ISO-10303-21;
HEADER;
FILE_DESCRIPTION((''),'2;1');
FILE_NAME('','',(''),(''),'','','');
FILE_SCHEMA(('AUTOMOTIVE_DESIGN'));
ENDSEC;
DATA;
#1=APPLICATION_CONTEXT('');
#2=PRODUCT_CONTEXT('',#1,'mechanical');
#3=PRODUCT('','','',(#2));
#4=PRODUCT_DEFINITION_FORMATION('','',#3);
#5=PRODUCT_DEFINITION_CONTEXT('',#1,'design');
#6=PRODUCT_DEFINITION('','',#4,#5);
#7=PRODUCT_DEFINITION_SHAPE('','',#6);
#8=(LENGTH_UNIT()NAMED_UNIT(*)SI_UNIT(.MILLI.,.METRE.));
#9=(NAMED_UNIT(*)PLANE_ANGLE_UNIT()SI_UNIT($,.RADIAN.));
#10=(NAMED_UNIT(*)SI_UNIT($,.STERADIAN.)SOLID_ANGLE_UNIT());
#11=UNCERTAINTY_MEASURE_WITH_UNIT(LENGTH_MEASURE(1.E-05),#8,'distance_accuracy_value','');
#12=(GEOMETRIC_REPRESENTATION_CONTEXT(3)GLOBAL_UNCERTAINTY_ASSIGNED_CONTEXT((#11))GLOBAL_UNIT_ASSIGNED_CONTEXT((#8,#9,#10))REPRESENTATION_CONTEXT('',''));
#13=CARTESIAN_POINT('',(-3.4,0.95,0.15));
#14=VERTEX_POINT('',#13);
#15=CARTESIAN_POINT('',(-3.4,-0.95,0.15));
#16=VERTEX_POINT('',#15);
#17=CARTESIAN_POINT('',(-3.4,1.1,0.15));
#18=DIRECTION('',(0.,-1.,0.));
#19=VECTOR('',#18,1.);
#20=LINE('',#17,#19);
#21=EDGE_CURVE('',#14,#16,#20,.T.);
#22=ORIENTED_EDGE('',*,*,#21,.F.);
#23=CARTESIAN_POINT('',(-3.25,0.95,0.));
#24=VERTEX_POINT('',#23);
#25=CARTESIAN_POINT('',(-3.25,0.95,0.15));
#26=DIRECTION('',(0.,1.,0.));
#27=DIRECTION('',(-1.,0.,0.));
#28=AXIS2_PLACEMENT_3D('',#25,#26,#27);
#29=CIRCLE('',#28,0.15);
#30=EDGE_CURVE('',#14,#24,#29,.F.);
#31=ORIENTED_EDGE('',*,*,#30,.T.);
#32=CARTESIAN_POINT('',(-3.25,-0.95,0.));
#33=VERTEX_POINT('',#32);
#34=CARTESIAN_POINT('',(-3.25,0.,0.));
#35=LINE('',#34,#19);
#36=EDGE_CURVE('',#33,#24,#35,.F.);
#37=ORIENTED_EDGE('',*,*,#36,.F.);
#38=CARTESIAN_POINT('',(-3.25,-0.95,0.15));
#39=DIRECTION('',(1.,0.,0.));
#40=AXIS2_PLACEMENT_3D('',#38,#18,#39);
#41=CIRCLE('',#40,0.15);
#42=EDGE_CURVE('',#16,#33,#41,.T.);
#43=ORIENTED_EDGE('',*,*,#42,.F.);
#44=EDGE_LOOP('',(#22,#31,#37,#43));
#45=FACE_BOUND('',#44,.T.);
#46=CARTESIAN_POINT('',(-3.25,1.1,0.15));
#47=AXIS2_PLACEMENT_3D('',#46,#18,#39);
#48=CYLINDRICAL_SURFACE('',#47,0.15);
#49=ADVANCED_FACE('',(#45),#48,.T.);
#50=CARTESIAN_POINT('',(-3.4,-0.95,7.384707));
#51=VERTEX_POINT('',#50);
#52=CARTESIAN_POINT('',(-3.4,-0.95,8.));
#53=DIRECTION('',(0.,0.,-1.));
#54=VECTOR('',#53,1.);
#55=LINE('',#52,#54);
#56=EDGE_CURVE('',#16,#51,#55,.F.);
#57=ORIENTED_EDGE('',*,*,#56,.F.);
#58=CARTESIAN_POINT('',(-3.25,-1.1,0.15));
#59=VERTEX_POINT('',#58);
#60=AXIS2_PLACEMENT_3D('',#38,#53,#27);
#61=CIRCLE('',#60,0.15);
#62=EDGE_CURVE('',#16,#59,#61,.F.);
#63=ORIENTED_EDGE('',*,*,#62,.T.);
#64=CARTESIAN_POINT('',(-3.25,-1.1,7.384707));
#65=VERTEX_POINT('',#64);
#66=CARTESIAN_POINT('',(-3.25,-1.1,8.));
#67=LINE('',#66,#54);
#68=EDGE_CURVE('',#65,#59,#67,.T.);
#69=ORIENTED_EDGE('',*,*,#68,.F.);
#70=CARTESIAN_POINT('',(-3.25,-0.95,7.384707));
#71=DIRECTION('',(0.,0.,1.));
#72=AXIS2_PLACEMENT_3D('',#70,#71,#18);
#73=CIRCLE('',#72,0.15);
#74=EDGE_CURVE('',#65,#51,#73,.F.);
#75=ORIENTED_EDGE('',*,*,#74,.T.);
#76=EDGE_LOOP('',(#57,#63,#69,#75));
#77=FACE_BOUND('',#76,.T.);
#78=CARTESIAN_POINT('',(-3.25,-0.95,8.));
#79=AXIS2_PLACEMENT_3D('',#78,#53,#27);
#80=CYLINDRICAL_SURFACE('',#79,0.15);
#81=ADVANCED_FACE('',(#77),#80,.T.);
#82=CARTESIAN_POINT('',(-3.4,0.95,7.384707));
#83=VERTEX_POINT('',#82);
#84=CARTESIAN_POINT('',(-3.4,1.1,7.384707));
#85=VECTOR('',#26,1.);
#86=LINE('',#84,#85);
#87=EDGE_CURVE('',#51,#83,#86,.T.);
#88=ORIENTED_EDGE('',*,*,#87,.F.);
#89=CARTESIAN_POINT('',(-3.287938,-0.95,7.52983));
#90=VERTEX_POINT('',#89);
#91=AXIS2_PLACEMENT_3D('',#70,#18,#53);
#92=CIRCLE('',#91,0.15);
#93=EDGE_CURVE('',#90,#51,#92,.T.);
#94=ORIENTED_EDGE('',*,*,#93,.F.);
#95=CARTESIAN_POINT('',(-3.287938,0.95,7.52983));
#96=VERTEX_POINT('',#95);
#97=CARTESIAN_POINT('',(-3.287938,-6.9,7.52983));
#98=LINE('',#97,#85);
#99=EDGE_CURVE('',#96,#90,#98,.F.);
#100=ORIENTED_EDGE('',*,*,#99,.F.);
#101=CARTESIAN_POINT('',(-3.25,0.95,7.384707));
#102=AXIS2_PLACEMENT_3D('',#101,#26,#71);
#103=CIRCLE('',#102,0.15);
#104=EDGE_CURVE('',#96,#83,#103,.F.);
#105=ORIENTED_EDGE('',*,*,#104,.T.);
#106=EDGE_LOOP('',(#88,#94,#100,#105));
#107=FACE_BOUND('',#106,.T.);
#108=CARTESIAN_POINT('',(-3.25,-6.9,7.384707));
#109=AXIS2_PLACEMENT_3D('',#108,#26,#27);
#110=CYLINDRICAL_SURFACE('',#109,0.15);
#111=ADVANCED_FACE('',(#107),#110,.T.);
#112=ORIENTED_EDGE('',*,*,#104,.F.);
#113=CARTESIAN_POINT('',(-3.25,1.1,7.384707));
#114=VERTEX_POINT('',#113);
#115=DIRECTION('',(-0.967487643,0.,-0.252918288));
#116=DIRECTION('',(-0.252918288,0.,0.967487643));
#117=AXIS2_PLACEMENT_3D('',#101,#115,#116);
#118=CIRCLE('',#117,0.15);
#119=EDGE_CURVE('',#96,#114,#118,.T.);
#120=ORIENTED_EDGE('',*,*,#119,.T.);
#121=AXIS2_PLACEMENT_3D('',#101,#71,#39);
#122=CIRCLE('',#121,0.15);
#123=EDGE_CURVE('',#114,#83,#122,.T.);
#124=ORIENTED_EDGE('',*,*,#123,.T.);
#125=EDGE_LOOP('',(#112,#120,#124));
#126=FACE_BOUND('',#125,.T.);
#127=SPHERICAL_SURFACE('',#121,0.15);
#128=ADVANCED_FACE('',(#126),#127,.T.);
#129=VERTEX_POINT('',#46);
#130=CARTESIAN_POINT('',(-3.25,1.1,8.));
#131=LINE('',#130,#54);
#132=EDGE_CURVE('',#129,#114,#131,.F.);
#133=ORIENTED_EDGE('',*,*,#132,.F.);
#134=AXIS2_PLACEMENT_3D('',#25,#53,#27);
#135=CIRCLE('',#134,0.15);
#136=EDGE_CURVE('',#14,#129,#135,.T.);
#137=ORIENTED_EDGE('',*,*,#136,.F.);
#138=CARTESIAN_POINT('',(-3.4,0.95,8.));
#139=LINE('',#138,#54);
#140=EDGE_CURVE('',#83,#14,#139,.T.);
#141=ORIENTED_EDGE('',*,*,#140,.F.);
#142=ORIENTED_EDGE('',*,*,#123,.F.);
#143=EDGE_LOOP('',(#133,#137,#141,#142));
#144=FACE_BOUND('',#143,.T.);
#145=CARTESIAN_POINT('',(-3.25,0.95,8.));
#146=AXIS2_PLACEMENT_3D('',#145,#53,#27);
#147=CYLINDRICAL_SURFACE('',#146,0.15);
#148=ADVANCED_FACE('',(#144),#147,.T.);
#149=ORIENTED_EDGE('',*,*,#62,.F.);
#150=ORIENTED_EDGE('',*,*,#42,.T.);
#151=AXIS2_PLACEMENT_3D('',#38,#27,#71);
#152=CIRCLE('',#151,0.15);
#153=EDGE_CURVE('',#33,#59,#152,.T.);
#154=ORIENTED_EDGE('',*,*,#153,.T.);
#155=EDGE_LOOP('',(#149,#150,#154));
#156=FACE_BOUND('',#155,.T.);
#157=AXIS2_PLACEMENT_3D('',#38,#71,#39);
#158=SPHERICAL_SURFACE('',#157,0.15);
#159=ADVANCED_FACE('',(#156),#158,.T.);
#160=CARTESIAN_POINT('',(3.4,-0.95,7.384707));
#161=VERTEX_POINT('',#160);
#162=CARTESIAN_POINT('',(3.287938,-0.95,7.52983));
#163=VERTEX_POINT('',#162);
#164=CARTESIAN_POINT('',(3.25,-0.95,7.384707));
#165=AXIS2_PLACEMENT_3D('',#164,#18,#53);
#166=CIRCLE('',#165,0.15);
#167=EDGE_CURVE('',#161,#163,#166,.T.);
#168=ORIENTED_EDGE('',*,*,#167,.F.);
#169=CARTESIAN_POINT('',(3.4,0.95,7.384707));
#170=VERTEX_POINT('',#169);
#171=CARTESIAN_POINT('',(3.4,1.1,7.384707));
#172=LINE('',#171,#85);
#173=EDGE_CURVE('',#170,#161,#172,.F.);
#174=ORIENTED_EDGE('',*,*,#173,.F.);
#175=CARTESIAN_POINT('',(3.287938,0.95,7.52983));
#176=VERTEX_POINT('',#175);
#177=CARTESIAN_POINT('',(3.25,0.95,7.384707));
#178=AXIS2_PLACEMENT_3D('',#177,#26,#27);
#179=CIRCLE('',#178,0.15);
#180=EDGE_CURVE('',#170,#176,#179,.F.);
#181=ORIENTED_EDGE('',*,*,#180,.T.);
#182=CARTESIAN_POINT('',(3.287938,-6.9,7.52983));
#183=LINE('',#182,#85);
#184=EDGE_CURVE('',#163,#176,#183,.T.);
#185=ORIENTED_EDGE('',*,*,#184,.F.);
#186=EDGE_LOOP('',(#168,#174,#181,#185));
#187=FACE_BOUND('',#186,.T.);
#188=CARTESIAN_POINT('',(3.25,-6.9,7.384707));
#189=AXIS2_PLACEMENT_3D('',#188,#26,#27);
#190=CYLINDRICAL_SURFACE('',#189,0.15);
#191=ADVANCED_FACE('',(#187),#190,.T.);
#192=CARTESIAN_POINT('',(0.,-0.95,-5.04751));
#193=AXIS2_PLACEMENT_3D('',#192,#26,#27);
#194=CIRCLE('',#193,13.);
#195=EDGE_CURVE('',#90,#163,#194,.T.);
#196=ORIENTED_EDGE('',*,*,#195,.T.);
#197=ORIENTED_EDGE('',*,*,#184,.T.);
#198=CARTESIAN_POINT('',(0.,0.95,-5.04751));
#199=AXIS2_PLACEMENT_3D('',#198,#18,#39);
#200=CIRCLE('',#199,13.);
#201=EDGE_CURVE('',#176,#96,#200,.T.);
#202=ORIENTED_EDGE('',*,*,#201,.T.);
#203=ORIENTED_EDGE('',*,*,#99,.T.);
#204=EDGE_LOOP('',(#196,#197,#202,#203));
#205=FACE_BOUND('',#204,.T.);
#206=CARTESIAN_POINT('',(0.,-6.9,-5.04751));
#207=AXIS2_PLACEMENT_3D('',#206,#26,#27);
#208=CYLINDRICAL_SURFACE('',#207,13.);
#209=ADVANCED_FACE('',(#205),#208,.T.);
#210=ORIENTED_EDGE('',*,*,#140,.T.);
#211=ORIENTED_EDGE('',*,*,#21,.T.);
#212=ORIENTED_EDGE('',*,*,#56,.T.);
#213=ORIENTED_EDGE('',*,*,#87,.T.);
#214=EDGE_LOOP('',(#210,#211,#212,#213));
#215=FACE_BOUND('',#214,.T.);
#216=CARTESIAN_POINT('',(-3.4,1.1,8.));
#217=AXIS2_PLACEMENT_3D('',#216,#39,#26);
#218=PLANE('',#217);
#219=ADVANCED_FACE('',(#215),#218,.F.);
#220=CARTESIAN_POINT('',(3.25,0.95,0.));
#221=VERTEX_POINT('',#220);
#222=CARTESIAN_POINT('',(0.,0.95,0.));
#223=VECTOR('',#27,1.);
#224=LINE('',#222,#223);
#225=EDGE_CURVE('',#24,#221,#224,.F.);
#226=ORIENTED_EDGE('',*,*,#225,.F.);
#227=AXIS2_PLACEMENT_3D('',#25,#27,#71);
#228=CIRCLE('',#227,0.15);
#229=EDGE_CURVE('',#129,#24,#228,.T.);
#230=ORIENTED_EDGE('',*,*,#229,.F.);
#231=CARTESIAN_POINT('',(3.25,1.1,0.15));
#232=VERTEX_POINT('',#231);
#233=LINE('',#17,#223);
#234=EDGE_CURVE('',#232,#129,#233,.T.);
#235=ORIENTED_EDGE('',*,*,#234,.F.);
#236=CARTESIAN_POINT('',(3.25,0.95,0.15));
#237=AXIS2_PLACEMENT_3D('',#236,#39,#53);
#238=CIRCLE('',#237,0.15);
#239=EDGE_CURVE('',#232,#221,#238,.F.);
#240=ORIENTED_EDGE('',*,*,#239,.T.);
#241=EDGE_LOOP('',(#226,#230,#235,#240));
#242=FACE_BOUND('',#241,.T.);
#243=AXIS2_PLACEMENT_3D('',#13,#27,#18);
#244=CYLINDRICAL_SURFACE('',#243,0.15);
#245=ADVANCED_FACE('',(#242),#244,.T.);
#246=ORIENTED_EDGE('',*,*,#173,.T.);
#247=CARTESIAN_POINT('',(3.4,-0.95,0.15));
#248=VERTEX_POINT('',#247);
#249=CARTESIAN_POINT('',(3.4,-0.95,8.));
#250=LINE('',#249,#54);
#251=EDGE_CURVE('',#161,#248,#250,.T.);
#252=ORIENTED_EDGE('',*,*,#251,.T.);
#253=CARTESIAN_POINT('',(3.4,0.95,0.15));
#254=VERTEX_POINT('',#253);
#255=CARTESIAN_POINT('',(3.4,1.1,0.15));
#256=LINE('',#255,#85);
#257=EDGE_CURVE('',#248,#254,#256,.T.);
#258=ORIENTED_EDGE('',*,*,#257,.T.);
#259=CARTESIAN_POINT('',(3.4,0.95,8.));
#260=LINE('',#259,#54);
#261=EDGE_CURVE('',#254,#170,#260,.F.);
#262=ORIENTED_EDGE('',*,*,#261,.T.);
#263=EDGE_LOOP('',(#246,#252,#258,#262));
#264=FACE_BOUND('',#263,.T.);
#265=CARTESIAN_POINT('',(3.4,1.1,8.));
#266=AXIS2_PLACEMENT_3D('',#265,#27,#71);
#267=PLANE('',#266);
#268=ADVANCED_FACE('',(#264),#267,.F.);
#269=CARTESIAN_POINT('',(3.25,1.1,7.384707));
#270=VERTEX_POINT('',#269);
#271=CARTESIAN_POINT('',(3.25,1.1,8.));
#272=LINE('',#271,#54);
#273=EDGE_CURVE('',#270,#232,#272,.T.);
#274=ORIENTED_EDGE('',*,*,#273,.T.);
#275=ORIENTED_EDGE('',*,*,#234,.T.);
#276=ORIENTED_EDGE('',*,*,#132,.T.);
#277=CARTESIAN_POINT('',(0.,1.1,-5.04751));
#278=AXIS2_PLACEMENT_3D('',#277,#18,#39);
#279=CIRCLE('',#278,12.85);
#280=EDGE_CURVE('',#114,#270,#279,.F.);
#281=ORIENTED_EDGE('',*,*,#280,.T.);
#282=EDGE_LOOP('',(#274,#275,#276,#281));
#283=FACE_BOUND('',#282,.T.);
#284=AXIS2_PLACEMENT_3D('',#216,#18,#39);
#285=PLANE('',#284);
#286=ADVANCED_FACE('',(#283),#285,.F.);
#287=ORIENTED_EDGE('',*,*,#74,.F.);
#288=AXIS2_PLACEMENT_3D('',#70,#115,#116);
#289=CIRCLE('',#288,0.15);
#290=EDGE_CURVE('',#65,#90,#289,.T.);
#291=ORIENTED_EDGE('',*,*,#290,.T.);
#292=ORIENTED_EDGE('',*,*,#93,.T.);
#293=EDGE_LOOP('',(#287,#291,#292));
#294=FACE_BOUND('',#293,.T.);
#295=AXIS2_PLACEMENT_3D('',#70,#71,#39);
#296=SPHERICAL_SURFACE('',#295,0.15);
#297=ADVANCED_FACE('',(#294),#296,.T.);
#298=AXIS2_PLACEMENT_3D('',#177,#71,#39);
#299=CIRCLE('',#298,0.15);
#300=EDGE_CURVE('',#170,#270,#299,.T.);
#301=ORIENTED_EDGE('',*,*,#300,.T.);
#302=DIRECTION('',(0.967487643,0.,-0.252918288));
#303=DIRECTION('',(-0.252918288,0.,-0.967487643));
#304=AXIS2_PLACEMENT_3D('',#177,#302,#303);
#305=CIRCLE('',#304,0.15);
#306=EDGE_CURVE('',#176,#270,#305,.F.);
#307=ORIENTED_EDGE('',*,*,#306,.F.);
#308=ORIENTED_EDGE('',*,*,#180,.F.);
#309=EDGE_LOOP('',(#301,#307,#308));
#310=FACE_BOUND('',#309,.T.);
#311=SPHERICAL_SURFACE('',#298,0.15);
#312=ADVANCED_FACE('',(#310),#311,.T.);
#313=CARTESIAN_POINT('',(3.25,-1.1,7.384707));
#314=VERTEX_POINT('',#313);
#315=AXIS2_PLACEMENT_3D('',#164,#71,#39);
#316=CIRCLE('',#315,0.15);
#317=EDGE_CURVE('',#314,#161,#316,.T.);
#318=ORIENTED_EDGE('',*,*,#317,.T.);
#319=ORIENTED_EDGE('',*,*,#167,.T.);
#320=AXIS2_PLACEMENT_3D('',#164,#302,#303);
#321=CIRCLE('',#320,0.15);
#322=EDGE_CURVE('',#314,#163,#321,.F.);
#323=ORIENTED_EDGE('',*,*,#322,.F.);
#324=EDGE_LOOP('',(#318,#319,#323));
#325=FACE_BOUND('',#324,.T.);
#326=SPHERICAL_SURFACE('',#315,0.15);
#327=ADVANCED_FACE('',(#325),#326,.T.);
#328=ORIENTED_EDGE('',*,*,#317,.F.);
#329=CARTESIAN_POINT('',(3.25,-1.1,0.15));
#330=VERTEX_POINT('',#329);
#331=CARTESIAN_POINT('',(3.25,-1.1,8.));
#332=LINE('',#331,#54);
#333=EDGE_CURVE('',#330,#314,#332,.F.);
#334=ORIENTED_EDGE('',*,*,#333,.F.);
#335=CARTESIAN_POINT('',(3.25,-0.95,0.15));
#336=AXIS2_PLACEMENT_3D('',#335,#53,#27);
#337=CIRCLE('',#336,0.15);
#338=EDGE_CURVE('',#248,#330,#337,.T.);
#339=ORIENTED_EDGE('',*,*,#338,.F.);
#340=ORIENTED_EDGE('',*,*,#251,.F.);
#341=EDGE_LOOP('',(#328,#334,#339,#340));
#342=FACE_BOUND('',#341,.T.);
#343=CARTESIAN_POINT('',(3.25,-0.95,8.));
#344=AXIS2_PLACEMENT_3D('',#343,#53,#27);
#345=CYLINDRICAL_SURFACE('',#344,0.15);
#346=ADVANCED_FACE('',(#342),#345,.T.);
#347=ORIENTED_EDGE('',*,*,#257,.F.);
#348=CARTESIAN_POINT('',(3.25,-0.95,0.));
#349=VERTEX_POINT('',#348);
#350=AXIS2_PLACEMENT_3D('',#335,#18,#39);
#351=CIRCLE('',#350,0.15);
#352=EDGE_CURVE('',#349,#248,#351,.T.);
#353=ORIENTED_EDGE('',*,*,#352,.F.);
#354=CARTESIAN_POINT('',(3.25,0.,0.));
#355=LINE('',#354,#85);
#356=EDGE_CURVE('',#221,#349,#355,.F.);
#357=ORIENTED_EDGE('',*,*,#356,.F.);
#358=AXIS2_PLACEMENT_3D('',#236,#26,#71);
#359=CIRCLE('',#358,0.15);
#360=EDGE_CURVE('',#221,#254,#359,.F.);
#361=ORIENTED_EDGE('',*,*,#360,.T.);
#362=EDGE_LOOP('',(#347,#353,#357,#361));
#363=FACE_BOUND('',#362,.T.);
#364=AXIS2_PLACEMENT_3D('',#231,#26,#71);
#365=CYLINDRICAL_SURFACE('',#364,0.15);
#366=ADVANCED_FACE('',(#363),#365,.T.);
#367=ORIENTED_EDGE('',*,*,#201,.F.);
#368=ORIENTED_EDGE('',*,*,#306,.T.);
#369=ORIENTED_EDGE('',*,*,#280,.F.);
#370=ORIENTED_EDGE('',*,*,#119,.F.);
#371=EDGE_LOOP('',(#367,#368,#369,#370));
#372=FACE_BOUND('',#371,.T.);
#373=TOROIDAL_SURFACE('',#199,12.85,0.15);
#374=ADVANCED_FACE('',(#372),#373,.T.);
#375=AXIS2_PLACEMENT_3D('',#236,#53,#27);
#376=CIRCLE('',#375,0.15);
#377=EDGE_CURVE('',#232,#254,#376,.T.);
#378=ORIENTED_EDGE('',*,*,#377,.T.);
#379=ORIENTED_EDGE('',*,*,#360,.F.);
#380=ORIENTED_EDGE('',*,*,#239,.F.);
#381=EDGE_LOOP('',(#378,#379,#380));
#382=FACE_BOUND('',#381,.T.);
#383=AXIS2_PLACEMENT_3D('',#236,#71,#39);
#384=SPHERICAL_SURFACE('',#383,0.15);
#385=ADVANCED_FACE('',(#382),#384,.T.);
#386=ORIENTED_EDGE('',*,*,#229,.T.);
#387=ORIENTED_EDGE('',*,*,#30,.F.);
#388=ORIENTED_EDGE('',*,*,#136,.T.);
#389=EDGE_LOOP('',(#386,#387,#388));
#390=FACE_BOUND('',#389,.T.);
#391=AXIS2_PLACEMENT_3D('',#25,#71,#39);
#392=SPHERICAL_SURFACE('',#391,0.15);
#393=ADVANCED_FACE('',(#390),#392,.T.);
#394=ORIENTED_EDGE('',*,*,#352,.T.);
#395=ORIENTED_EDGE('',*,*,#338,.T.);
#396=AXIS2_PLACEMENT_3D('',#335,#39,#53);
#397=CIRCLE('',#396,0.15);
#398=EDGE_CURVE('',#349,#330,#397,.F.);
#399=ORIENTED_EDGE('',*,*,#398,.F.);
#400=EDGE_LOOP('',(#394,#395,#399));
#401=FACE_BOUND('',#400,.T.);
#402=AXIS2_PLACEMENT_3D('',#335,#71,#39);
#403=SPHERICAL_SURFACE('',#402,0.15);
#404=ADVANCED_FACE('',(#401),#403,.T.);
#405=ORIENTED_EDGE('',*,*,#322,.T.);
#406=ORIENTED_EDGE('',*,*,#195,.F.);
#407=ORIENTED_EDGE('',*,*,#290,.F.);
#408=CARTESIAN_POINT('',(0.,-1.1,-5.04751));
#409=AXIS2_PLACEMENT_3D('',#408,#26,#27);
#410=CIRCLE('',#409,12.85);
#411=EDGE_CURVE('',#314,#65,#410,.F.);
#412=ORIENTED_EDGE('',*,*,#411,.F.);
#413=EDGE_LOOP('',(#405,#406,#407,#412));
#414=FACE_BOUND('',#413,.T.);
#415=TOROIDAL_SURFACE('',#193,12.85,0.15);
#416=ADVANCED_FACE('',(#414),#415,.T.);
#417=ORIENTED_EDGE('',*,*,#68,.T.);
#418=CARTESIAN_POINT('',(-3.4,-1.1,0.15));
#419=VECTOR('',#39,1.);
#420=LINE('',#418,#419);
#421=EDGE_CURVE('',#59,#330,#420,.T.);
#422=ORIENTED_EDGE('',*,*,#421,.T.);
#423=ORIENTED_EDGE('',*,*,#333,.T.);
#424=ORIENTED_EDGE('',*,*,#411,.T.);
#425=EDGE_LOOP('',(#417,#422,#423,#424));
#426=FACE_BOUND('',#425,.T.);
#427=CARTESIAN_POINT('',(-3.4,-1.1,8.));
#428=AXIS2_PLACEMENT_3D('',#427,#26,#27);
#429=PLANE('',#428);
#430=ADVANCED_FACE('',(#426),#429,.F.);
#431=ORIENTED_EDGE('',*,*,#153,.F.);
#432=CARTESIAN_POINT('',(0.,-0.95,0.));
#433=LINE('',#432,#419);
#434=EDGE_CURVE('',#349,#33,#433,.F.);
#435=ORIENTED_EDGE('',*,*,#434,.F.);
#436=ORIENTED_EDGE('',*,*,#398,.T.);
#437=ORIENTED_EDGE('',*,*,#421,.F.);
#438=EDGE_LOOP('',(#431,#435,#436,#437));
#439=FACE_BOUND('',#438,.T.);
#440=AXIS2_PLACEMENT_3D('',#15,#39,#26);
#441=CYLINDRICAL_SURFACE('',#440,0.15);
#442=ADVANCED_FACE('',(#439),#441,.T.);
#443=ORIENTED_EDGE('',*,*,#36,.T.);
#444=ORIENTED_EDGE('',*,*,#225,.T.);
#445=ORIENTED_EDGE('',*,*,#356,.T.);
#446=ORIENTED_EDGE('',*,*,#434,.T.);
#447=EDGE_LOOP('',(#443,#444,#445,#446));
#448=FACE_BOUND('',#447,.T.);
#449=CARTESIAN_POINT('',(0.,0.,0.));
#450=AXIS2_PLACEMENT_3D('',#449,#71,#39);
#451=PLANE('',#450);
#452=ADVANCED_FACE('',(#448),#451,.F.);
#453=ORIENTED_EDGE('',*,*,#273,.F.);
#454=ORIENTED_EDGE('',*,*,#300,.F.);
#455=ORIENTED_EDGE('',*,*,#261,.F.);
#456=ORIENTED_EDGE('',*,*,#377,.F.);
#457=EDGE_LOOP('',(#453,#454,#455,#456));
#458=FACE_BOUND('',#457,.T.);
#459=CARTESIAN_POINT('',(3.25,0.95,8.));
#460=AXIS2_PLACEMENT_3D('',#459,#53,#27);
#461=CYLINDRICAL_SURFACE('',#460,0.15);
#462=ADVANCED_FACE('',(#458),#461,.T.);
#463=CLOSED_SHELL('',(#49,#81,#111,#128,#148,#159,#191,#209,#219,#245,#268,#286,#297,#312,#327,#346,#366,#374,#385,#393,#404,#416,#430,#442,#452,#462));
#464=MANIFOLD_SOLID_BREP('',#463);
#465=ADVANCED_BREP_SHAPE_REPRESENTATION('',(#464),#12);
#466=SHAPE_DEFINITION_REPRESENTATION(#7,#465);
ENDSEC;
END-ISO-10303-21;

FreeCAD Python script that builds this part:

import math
import FreeCAD as App
import Part
import Sketcher
from FreeCAD import Vector
Q = App.Units.Quantity

doc = App.newDocument("Part")
body = doc.addObject("PartDesign::Body", "Body")

# Sketch on XY plane
sketch1 = body.newObject("Sketcher::SketchObject", "Sketch")
sketch1.AttachmentSupport = (doc.getObject("XY_Plane"), [""])
sketch1.MapMode = "FlatFace"
sketch1.addGeometry([
    Part.LineSegment(Vector(-3.4, 1.1, 0), Vector(-3.4, -1.1, 0)),
    Part.LineSegment(Vector(-3.4, -1.1, 0), Vector(3.4, -1.1, 0)),
    Part.LineSegment(Vector(3.4, -1.1, 0), Vector(3.4, 1.1, 0)),
    Part.LineSegment(Vector(3.4, 1.1, 0), Vector(-3.4, 1.1, 0)),
], False)
sketch1.addConstraint([
    Sketcher.Constraint("Coincident", 0, 2, 1, 1),
    Sketcher.Constraint("Coincident", 1, 2, 2, 1),
    Sketcher.Constraint("Coincident", 2, 2, 3, 1),
    Sketcher.Constraint("Coincident", 3, 2, 0, 1),
    Sketcher.Constraint("Vertical", 0),
    Sketcher.Constraint("Horizontal", 1),
    Sketcher.Constraint("Vertical", 2),
    Sketcher.Constraint("Horizontal", 3),
    Sketcher.Constraint("Symmetric", 0, 2, 2, 2, -1, 1),
    Sketcher.Constraint("DistanceX", 1, 1, 1, 2, Q("6.8 mm")),
    Sketcher.Constraint("DistanceY", 0, 2, 0, 1, Q("2.2 mm")),
])
pad1 = body.newObject("PartDesign::Pad", "Pad")
pad1.Profile = sketch1
pad1.Length = 8

# Sketch on XZ plane
sketch2 = body.newObject("Sketcher::SketchObject", "Sketch001")
sketch2.AttachmentSupport = (doc.getObject("XZ_Plane"), [""])
sketch2.MapMode = "FlatFace"
sketch2.AttachmentOffset = App.Placement(Vector(0, 0, -1.1), App.Rotation())
sketch2.addGeometry([
    Part.LineSegment(Vector(-3.4, 7.5, 0), Vector(-4.3, 8.7, 0)),
    Part.LineSegment(Vector(-4.3, 8.7, 0), Vector(5.3, 9, 0)),
    Part.LineSegment(Vector(5.3, 9, 0), Vector(3.4, 7.5, 0)),
    Part.ArcOfCircle(Part.Circle(Vector(0, -5, 0), Vector(0, 0, 1), 13), math.radians(75), math.radians(105)),
], False)
sketch2.addConstraint([
    Sketcher.Constraint("Coincident", 0, 2, 1, 1),
    Sketcher.Constraint("Coincident", 1, 2, 2, 1),
    Sketcher.Constraint("Coincident", 2, 2, 3, 1),
    Sketcher.Constraint("Coincident", 3, 2, 0, 1),
    Sketcher.Constraint("Symmetric", 2, 2, 3, 2, -2),
    Sketcher.Constraint("Radius", 3, Q("13 mm")),
    Sketcher.Constraint("DistanceX", -1, 1, 2, 2, Q("3.4 mm")),
    Sketcher.Constraint("DistanceY", -1, 1, 2, 2, Q("7.5 mm")),
    Sketcher.Constraint("Distance", 2, Q("2.406519 mm")),
    Sketcher.Constraint("DistanceY", -1, 1, 0, 2, Q("8.749971 mm")),
    Sketcher.Constraint("DistanceX", -1, 1, 1, 2, Q("5.303991 mm")),
    Sketcher.Constraint("Distance", 0, Q("1.563043 mm")),
])
pocket1 = body.newObject("PartDesign::Pocket", "Pocket")
pocket1.Profile = sketch2
pocket1.Length = 8
pocket1.Reversed = True
doc.recompute()

fillet = body.newObject("PartDesign::Fillet", "Fillet")
fillet.Base = (pocket1, ["Edge1"])
fillet.UseAllEdges = True
fillet.Radius = 0.15

doc.recompute()
